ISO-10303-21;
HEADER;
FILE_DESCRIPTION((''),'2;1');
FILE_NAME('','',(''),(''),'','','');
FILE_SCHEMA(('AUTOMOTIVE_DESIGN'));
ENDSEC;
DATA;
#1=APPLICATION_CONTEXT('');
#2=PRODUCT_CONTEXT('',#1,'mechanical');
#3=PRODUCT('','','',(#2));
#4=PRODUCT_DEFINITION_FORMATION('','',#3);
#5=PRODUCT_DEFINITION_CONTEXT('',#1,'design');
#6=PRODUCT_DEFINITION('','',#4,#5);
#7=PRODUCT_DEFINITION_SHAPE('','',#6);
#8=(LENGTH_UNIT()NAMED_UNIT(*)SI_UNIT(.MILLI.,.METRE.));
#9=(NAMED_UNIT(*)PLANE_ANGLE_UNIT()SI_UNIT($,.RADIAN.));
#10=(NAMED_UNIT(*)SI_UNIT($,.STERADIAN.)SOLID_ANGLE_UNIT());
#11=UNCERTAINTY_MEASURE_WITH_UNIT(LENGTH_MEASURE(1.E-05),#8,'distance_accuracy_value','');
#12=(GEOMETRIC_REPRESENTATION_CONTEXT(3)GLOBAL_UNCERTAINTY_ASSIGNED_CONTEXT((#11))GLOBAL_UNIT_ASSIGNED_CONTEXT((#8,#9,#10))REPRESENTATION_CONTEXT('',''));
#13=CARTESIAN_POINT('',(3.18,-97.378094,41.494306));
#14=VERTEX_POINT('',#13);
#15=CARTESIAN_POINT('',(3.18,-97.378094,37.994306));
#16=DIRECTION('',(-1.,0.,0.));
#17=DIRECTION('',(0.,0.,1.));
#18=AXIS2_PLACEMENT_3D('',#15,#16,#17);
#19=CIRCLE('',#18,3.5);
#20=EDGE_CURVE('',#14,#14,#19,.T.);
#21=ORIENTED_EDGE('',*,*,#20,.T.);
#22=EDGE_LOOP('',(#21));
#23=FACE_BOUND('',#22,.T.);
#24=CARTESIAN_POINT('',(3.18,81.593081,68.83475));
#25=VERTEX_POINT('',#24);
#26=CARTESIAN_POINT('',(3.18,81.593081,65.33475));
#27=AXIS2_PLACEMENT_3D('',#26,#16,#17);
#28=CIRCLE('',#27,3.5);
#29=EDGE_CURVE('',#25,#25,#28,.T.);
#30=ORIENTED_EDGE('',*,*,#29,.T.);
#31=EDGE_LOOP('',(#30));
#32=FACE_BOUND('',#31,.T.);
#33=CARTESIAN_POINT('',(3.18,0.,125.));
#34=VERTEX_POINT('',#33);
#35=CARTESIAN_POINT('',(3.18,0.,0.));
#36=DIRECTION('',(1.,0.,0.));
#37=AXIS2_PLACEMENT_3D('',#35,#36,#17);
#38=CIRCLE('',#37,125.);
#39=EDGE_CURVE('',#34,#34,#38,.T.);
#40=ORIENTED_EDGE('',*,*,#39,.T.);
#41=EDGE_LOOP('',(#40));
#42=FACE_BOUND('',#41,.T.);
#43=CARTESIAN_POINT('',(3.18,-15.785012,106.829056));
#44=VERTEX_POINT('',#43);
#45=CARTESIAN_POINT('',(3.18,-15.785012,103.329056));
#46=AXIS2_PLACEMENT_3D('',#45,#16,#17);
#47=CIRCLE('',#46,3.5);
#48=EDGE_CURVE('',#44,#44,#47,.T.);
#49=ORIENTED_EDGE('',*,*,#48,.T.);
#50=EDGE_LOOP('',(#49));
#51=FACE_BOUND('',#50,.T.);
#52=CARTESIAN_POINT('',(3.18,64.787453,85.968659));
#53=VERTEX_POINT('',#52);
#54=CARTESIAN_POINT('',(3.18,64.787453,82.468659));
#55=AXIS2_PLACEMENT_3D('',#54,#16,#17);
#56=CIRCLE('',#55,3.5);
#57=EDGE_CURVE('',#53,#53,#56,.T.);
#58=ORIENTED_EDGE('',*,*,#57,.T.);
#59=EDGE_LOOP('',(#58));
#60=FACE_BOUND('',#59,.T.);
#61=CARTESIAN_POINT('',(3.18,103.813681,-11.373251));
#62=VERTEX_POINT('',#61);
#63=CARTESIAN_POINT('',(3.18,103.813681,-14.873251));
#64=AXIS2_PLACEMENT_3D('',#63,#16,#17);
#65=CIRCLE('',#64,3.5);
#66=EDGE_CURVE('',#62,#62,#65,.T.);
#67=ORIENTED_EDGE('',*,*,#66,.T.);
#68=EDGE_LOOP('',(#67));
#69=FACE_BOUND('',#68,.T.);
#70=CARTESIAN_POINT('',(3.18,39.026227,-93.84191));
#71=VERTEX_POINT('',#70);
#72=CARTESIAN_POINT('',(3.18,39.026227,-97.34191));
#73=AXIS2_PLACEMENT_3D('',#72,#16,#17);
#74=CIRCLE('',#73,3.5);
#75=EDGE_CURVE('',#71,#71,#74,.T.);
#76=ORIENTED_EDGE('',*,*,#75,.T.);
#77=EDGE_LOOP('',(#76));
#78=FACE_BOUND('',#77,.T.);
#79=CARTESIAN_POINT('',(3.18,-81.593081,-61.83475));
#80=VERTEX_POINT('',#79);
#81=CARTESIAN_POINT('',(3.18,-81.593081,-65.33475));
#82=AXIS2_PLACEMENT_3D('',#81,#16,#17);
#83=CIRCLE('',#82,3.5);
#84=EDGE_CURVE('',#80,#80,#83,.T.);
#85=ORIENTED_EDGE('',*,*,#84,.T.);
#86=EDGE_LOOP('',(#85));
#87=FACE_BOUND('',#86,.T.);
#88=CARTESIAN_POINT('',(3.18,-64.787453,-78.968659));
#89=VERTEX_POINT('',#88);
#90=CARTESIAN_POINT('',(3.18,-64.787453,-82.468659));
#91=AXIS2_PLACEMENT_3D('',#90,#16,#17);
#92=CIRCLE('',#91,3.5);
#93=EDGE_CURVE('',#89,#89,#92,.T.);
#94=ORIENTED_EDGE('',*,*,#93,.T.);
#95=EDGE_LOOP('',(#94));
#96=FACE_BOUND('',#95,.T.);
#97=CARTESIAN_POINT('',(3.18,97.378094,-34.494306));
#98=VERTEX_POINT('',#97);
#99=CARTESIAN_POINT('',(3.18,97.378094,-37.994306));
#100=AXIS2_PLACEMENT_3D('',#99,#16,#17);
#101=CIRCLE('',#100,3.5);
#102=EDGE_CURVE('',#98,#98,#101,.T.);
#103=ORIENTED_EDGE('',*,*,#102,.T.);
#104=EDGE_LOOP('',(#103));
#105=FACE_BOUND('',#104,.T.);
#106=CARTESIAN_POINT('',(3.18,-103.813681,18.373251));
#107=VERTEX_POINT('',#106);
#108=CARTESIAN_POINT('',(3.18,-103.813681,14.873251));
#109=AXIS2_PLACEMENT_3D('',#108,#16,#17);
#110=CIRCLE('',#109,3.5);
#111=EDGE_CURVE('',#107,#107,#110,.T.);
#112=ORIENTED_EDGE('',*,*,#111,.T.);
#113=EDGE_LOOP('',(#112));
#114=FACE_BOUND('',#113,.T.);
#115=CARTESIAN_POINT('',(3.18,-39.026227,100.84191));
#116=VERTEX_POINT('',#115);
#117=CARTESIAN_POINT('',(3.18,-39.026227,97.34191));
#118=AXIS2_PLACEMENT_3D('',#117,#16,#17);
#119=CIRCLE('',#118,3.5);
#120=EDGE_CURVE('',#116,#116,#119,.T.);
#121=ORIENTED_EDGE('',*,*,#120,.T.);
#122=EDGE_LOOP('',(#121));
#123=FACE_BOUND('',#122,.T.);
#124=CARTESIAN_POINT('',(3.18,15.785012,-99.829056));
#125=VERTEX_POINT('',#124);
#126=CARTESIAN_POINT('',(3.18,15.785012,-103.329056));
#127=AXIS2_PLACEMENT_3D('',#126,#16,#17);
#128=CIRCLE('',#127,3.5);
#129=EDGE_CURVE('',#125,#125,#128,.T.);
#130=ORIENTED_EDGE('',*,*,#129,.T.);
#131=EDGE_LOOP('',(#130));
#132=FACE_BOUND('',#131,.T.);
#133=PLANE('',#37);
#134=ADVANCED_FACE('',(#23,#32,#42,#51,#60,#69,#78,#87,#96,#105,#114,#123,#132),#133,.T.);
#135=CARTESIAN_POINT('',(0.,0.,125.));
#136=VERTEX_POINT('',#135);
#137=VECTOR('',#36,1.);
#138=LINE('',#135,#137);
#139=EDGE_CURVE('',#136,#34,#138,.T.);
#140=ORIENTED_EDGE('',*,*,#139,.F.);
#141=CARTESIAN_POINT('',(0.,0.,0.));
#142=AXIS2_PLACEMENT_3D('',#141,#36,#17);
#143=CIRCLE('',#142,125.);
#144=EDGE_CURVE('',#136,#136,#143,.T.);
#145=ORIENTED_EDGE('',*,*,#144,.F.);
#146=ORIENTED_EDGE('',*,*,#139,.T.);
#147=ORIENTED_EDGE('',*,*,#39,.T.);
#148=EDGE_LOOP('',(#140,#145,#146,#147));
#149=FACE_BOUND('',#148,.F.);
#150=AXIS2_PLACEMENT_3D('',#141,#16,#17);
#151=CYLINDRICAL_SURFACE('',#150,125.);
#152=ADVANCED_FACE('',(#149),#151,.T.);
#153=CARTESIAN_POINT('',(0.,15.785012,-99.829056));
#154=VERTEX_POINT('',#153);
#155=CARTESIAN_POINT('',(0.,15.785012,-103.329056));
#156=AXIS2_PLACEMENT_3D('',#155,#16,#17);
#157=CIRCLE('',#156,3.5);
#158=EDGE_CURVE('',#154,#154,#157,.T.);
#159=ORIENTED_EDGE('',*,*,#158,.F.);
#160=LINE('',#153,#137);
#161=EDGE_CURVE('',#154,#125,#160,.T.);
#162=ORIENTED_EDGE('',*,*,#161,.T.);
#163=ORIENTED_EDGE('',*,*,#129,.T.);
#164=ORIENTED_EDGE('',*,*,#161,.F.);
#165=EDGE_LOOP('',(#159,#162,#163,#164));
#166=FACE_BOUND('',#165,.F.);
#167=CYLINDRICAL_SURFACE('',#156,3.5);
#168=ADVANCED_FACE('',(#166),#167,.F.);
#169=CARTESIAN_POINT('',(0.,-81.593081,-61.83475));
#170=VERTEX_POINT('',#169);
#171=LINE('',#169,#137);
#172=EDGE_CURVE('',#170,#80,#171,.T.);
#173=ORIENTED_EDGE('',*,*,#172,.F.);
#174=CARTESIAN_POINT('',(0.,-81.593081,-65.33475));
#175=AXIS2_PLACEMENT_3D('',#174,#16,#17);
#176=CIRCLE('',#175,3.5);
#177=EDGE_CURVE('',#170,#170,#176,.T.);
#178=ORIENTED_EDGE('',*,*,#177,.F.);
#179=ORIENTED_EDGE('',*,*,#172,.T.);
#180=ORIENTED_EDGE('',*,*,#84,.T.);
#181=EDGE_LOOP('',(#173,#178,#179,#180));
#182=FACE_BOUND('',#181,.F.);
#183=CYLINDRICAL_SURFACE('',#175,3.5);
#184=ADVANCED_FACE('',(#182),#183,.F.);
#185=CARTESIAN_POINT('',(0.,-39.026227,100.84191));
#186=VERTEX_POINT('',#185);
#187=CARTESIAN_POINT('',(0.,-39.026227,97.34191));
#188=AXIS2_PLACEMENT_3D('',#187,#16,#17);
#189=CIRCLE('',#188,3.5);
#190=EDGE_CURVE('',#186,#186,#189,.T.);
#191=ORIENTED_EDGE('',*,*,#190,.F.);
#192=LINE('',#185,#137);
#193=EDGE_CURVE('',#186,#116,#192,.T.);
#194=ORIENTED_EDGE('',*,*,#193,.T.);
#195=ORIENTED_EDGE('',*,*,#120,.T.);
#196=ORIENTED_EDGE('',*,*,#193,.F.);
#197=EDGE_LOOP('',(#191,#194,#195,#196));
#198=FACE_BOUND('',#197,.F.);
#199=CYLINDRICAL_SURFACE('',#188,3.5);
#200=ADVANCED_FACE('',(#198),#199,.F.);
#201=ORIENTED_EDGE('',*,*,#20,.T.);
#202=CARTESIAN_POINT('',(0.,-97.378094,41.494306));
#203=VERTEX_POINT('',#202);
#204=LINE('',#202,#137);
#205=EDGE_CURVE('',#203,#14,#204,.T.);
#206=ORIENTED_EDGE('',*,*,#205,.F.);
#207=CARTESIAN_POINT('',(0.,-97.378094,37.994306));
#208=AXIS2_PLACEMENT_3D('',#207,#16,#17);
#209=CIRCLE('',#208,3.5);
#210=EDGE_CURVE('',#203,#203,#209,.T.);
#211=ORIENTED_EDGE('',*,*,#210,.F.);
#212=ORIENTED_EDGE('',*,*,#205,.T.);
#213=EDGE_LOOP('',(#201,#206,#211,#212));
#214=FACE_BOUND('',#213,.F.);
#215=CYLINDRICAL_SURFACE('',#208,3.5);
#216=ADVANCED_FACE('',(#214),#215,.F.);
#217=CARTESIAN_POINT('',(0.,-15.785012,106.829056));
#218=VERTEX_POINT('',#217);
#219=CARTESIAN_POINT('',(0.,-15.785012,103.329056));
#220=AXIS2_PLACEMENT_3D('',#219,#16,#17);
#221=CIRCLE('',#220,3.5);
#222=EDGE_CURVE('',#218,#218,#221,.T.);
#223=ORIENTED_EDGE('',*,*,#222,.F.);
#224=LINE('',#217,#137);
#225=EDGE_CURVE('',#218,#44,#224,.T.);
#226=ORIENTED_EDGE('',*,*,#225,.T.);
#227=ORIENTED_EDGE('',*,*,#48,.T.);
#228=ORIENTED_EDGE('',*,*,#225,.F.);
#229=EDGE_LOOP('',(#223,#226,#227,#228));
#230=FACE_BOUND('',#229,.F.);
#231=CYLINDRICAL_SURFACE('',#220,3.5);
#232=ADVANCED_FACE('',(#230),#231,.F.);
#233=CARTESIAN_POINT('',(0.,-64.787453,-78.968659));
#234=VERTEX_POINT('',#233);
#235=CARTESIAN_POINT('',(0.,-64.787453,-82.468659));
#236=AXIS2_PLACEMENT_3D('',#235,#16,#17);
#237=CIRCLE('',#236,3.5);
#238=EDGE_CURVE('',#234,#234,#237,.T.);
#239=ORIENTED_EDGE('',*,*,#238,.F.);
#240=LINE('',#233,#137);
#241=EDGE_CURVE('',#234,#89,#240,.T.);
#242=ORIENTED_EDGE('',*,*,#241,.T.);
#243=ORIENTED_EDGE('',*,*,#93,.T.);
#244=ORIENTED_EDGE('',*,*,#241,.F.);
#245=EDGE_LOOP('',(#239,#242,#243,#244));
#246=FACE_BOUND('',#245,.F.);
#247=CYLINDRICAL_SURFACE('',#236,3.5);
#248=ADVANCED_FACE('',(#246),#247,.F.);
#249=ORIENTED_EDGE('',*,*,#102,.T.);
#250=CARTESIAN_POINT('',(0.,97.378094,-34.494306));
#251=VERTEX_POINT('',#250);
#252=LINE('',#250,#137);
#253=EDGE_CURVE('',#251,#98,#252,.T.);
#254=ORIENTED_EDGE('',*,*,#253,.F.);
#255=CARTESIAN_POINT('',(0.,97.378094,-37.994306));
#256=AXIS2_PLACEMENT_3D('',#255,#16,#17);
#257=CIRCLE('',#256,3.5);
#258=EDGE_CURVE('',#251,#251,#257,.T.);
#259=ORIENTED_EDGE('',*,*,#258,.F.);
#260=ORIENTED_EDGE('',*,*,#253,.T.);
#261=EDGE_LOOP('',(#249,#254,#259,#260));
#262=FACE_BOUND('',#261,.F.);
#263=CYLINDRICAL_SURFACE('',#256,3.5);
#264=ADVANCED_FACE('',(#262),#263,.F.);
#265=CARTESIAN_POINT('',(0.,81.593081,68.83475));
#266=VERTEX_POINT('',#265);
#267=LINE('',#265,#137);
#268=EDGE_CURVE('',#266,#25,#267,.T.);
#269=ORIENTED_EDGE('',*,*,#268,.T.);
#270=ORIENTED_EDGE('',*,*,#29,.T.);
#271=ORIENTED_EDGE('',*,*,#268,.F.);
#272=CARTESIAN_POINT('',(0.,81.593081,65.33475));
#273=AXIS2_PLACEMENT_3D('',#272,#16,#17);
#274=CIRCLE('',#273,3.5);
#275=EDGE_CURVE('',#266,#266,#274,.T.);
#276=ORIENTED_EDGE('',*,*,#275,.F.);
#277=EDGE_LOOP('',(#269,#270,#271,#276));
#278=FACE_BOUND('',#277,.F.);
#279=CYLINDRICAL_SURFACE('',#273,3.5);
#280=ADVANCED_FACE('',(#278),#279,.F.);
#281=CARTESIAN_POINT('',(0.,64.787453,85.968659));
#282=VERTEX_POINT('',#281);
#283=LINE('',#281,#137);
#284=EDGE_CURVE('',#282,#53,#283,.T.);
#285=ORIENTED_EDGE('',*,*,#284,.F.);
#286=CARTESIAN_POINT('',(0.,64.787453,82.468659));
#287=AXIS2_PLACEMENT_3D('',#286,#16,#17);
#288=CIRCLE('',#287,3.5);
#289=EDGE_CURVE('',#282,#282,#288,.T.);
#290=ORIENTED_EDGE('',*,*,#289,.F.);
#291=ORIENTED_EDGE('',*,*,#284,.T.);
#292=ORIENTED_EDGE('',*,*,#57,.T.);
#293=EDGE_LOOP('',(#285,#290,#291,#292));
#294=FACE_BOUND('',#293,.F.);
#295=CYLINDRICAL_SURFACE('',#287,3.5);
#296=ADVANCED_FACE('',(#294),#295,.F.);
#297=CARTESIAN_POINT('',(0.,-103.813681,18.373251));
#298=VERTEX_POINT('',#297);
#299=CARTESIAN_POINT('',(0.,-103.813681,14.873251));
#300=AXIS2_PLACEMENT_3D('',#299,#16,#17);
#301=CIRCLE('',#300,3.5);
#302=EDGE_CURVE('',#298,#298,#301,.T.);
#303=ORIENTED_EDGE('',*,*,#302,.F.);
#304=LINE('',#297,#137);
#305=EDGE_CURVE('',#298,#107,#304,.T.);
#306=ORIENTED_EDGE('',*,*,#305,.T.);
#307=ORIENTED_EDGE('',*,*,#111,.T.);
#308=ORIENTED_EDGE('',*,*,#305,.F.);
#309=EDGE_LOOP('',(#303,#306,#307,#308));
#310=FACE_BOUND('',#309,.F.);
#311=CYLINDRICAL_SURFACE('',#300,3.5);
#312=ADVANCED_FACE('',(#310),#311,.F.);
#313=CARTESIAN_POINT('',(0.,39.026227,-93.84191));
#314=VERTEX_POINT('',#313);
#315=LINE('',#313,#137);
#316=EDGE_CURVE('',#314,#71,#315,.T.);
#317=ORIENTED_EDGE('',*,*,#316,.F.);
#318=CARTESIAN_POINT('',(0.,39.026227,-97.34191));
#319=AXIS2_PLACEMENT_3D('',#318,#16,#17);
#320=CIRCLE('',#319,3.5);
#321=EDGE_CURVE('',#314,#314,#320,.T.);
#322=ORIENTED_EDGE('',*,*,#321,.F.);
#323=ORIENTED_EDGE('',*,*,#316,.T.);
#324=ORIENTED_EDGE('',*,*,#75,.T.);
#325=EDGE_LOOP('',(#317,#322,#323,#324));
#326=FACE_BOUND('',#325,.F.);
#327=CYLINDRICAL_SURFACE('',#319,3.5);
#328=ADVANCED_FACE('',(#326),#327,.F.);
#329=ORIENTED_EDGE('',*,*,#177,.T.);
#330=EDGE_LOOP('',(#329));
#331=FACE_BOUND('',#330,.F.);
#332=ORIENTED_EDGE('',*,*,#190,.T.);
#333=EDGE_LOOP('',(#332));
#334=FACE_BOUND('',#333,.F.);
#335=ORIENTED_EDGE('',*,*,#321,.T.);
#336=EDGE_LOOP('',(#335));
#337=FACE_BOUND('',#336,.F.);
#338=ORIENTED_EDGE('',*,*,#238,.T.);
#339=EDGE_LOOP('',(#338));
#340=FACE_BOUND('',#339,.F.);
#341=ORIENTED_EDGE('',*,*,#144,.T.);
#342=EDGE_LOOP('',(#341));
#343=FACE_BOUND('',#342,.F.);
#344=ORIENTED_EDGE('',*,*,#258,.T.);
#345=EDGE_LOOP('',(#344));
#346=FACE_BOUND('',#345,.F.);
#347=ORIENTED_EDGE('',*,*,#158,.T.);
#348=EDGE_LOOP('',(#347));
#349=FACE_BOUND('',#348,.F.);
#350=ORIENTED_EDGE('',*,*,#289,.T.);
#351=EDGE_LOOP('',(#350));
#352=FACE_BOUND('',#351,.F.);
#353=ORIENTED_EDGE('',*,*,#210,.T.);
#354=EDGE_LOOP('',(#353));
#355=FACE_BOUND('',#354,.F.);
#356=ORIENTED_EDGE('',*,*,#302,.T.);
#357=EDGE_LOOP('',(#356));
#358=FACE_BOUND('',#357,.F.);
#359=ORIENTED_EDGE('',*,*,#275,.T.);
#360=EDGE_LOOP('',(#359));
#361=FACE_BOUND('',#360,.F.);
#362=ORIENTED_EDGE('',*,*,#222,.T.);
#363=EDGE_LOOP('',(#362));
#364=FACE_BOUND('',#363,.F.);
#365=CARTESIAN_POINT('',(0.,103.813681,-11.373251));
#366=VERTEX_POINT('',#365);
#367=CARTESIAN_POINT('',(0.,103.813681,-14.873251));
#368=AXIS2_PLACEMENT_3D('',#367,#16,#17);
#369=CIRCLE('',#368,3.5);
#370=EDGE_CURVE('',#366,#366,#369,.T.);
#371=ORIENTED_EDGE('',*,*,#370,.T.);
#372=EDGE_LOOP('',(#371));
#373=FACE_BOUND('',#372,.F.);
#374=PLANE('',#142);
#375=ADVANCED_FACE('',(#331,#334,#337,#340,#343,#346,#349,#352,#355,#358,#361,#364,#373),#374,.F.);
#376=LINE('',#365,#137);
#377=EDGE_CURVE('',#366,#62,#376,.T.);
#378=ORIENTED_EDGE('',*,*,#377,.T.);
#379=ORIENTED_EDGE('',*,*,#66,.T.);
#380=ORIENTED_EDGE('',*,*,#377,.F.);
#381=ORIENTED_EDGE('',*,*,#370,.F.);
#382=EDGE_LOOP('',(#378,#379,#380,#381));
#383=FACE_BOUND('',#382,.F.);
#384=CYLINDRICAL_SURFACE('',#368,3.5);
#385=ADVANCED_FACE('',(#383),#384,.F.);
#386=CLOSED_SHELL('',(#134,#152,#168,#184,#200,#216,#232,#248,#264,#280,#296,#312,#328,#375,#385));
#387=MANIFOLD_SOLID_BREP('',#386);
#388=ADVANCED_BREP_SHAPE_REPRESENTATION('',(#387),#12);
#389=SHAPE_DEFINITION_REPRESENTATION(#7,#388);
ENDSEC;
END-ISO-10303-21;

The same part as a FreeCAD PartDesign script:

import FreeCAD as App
import Part
import Sketcher
from FreeCAD import Vector
Q = App.Units.Quantity

doc = App.newDocument("Part")
body = doc.addObject("PartDesign::Body", "Body")

# Sketch on YZ plane
sketch1 = body.newObject("Sketcher::SketchObject", "Sketch")
sketch1.AttachmentSupport = (doc.getObject("YZ_Plane"), [""])
sketch1.MapMode = "FlatFace"
sketch1.addGeometry(Part.Circle(Vector(0, 0, 0), Vector(0, 0, 1), 125), False)
sketch1.addConstraint([
    Sketcher.Constraint("Coincident", 0, 3, -1, 1),
    Sketcher.Constraint("Diameter", 0, Q("250 mm")),
])
pad1 = body.newObject("PartDesign::Pad", "Pad")
pad1.Profile = sketch1
pad1.Length = 3.18

# Sketch on YZ plane
sketch2 = body.newObject("Sketcher::SketchObject", "Sketch001")
sketch2.AttachmentSupport = (doc.getObject("YZ_Plane"), [""])
sketch2.MapMode = "FlatFace"
sketch2.addGeometry([
    Part.Circle(Vector(-15.8, 103.3, 0), Vector(0, 0, 1), 3.5),  # 0
    Part.Circle(Vector(-39, 97.3, 0), Vector(0, 0, 1), 3.5),  # 1
    Part.Circle(Vector(-103.8, 14.9, 0), Vector(0, 0, 1), 3.5),  # 2
    Part.Circle(Vector(-97.4, 38, 0), Vector(0, 0, 1), 3.5),  # 3
    Part.Circle(Vector(-81.6, -65.3, 0), Vector(0, 0, 1), 3.5),  # 4
    Part.Circle(Vector(-64.8, -82.5, 0), Vector(0, 0, 1), 3.5),  # 5
    Part.Circle(Vector(39, -97.3, 0), Vector(0, 0, 1), 3.5),  # 6
    Part.Circle(Vector(15.8, -103.3, 0), Vector(0, 0, 1), 3.5),  # 7
    Part.Circle(Vector(97.4, -38, 0), Vector(0, 0, 1), 3.5),  # 8
    Part.Circle(Vector(103.8, -14.9, 0), Vector(0, 0, 1), 3.5),  # 9
    Part.Circle(Vector(81.6, 65.3, 0), Vector(0, 0, 1), 3.5),  # 10
    Part.Circle(Vector(64.8, 82.5, 0), Vector(0, 0, 1), 3.5),  # 11
], False)
sketch2.addConstraint([
    Sketcher.Constraint("Equal", 0, 1),
    Sketcher.Constraint("Equal", 1, 2),
    Sketcher.Constraint("Equal", 2, 3),
    Sketcher.Constraint("Equal", 3, 4),
    Sketcher.Constraint("Equal", 4, 5),
    Sketcher.Constraint("Equal", 5, 6),
    Sketcher.Constraint("Equal", 6, 7),
    Sketcher.Constraint("Equal", 7, 8),
    Sketcher.Constraint("Equal", 8, 9),
    Sketcher.Constraint("Equal", 9, 10),
    Sketcher.Constraint("Equal", 10, 11),
    Sketcher.Constraint("Symmetric", 1, 3, 6, 3, -1, 1),
    Sketcher.Constraint("Symmetric", 0, 3, 7, 3, -1, 1),
    Sketcher.Constraint("Symmetric", 3, 3, 8, 3, -1, 1),
    Sketcher.Constraint("Symmetric", 2, 3, 9, 3, -1, 1),
    Sketcher.Constraint("Symmetric", 4, 3, 10, 3, -1, 1),
    Sketcher.Constraint("Symmetric", 5, 3, 11, 3, -1, 1),
    Sketcher.Constraint("Diameter", 0, Q("7 mm")),
    Sketcher.Constraint("DistanceY", 4, 3, 2, 3, Q("80.208 mm")),
    Sketcher.Constraint("DistanceX", 2, 3, 4, 3, Q("22.220599 mm")),
    Sketcher.Constraint("DistanceY", -1, 1, 1, 3, Q("97.34191 mm")),
    Sketcher.Constraint("DistanceX", 2, 3, -1, 1, Q("103.813681 mm")),
    Sketcher.Constraint("DistanceY", -1, 1, 2, 3, Q("14.873251 mm")),
    Sketcher.Constraint("DistanceY", 5, 3, -1, 1, Q("82.468659 mm")),
    Sketcher.Constraint("DistanceX", 2, 3, 0, 3, Q("88.028669 mm")),
    Sketcher.Constraint("DistanceX", 3, 3, 0, 3, Q("81.593081 mm")),
    Sketcher.Constraint("DistanceY", 3, 3, 0, 3, Q("65.33475 mm")),
    Sketcher.Constraint("DistanceX", 4, 3, 5, 3, Q("16.805628 mm")),
    Sketcher.Constraint("DistanceX", 5, 3, 6, 3, Q("103.813681 mm")),
    Sketcher.Constraint("DistanceY", -1, 1, 0, 3, Q("103.329056 mm")),
])
pocket1 = body.newObject("PartDesign::Pocket", "Pocket")
pocket1.Profile = sketch2
pocket1.Type = "ThroughAll"
pocket1.Reversed = True

doc.recompute()
